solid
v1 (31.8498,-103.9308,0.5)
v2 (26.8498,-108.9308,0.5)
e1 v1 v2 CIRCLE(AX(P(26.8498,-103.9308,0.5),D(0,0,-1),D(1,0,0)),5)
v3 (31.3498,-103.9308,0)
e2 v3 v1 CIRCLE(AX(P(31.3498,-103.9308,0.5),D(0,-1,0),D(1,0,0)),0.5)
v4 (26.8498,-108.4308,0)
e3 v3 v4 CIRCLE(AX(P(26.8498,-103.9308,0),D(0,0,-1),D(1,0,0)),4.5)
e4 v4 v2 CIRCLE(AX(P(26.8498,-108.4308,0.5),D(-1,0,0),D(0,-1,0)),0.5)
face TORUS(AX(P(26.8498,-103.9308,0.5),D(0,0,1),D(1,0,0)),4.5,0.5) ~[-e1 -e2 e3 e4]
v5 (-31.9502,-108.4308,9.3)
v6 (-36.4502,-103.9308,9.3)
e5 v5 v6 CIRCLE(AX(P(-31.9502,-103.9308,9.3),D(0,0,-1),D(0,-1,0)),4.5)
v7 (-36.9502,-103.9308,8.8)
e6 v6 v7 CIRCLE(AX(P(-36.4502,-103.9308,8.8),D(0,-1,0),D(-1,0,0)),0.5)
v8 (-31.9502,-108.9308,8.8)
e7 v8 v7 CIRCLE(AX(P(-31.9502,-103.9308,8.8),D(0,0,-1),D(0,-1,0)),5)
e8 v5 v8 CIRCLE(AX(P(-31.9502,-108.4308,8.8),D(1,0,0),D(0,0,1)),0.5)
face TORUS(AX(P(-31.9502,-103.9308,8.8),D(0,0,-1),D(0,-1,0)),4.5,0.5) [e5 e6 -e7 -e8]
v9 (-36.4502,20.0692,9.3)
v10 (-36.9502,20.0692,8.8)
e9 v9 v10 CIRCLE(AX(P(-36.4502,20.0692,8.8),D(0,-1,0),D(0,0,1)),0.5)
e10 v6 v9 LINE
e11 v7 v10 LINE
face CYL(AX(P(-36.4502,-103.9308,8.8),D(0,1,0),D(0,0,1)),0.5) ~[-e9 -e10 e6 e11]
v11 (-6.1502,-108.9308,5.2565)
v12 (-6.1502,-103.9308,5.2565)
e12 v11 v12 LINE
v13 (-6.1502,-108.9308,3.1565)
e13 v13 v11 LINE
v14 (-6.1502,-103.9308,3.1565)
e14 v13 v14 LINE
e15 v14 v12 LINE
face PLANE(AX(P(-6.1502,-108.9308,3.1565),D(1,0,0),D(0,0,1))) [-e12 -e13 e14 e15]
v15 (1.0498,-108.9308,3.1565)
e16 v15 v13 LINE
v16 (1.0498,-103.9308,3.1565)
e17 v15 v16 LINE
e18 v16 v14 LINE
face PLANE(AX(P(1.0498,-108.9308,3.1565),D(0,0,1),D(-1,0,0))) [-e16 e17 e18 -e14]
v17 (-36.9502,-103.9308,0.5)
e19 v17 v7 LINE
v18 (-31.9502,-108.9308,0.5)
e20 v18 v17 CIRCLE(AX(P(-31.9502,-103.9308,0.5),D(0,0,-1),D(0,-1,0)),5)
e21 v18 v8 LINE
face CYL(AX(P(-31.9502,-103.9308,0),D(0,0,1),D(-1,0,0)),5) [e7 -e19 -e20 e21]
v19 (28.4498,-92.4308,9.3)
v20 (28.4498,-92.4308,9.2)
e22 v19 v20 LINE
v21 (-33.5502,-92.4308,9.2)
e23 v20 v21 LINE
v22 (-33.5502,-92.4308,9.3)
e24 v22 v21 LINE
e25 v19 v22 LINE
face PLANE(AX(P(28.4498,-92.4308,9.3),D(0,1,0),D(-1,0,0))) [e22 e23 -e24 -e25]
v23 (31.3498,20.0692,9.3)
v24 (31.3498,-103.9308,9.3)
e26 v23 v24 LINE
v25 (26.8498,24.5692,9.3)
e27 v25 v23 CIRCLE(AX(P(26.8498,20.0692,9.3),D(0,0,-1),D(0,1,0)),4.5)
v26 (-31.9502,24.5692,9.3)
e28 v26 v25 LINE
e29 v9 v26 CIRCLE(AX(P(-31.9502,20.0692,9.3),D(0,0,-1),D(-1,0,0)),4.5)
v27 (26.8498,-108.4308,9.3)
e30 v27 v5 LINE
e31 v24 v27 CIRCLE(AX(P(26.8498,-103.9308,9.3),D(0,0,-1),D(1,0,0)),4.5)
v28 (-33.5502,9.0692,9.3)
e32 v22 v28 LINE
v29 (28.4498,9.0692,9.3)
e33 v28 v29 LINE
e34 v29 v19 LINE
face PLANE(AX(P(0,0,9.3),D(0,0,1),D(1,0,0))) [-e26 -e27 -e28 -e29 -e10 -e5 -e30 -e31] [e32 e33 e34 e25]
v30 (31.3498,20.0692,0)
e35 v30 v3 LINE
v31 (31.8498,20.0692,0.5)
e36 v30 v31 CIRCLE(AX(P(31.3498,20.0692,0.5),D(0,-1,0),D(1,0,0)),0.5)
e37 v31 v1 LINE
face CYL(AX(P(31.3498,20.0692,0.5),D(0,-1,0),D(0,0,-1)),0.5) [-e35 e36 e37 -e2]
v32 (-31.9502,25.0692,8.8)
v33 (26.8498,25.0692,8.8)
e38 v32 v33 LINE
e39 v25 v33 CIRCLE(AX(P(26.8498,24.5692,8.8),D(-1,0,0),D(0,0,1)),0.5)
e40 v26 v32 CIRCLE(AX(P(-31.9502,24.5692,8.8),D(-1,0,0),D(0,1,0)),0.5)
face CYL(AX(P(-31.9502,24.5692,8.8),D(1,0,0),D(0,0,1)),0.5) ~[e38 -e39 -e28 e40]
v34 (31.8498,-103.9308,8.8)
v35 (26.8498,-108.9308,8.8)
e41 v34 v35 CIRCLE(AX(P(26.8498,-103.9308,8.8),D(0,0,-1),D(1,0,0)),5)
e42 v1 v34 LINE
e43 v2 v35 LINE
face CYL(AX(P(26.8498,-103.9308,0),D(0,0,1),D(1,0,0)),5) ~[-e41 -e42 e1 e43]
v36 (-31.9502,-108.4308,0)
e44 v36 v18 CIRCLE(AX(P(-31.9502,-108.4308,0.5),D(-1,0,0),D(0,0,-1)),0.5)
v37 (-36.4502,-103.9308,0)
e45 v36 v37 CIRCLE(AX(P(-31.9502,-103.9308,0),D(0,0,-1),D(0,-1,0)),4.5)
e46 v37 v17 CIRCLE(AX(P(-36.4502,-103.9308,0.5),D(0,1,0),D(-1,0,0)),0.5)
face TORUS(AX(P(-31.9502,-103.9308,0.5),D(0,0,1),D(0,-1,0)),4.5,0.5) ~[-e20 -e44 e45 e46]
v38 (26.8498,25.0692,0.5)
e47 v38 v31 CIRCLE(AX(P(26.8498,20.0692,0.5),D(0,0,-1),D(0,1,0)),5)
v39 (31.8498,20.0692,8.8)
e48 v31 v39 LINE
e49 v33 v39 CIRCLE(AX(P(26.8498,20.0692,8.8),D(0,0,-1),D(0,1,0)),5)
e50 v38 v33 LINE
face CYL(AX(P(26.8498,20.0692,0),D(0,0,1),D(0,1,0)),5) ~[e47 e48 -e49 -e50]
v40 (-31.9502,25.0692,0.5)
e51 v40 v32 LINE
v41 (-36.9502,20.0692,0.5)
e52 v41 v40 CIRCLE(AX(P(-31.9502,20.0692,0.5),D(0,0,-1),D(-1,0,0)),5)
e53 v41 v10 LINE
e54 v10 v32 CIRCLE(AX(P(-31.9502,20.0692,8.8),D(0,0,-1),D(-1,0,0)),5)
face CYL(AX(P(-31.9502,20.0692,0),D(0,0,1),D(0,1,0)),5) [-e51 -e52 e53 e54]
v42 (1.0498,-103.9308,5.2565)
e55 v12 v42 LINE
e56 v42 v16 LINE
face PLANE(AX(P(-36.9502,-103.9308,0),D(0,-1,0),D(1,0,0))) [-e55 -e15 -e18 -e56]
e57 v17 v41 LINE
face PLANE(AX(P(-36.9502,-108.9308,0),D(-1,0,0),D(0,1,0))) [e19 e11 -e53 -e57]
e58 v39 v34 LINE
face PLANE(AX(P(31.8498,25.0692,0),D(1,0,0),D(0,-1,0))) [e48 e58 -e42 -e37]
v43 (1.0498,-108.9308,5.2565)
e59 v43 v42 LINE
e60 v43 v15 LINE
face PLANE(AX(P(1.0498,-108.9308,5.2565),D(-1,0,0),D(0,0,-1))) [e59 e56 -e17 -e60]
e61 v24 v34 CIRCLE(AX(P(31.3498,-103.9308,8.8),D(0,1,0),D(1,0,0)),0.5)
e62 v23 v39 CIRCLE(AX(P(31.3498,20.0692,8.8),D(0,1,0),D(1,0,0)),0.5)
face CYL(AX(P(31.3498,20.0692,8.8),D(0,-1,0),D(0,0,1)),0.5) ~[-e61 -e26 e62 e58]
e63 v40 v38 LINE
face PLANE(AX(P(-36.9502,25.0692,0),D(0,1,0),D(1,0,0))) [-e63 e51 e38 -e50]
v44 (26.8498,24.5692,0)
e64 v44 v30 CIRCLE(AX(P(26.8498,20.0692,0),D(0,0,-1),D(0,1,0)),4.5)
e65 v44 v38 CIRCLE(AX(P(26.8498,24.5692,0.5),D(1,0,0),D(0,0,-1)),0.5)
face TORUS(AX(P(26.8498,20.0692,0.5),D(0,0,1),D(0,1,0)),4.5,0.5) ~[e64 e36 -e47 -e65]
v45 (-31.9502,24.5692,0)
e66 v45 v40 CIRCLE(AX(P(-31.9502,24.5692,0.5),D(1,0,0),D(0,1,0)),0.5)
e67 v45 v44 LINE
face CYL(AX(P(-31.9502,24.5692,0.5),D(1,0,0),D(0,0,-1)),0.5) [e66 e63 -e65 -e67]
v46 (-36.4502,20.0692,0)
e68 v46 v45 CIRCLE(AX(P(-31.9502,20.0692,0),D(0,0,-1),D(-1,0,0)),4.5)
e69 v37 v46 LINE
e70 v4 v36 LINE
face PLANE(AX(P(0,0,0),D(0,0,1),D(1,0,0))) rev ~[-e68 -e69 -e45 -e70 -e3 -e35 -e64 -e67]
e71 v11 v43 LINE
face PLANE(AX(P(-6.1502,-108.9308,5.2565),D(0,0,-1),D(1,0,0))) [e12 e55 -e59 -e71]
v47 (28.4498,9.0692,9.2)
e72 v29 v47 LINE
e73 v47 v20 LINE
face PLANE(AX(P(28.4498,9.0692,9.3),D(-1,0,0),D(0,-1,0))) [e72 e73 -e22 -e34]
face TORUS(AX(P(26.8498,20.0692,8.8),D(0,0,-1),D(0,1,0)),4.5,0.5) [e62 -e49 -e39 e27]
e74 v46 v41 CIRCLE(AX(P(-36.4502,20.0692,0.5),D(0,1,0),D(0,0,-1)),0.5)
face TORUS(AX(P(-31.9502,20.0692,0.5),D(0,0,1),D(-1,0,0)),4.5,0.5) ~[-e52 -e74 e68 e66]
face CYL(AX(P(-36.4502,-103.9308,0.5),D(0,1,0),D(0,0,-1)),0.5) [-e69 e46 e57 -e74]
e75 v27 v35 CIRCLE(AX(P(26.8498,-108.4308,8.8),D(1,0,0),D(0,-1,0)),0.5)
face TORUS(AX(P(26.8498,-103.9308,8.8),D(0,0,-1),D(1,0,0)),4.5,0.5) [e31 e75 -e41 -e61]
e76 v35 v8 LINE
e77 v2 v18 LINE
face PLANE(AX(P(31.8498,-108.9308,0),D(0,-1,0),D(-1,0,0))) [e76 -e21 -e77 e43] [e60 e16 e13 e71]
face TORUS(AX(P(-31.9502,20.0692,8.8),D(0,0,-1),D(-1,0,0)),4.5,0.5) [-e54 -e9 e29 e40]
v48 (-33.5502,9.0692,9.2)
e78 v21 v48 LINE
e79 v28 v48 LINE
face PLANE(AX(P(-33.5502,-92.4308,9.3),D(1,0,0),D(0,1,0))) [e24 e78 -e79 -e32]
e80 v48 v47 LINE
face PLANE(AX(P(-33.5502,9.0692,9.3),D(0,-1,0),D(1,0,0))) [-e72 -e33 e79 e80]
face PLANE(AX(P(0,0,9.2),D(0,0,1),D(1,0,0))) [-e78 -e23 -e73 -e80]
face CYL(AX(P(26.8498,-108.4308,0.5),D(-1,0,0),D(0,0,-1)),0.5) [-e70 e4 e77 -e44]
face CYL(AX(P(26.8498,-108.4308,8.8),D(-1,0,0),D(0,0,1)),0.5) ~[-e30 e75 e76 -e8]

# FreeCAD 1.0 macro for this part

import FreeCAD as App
import Part
import Sketcher


def edges_at(feature, points):
    """Names of the edges that pass closest to the given points."""
    edges = feature.Shape.Edges
    near = lambda p: min(range(len(edges)), key=lambda i: edges[i].distToShape(Part.Vertex(*p))[0])
    return sorted({f"Edge{near(p) + 1}" for p in points})


def add_polygon(sketch, points):
    """Adds a closed chain of lines whose ends are joined by coincident constraints."""
    first, n = sketch.GeometryCount, len(points)
    for a, b in zip(points, points[1:] + points[:1]):
        sketch.addGeometry(Part.LineSegment(App.Vector(*a, 0), App.Vector(*b, 0)), False)
    for i in range(n):
        sketch.addConstraint(Sketcher.Constraint("Coincident", first + i, 2, first + (i + 1) % n, 1))

doc = App.newDocument("Part")
body = doc.addObject("PartDesign::Body", "Body")

sketch1 = body.newObject("Sketcher::SketchObject", "Sketch")
sketch1.AttachmentSupport = (doc.getObject("XY_Plane"), [""])
sketch1.MapMode = "FlatFace"
add_polygon(sketch1, [(32, 25), (-37, 25), (-37, -109), (32, -109)])
sketch1.addConstraint(Sketcher.Constraint("Horizontal", 0))
sketch1.addConstraint(Sketcher.Constraint("Vertical", 1))
sketch1.addConstraint(Sketcher.Constraint("Horizontal", 2))
sketch1.addConstraint(Sketcher.Constraint("Vertical", 3))
sketch1.addConstraint(Sketcher.Constraint("DistanceY", 1, 2, 1, 1, 134.0))
sketch1.addConstraint(Sketcher.Constraint("DistanceX", 0, 2, 0, 1, 68.8))
sketch1.addConstraint(Sketcher.Constraint("DistanceX", 0, 2, -1, 1, 36.9502))
sketch1.addConstraint(Sketcher.Constraint("DistanceY", -1, 1, 0, 2, 25.0692))
pad1 = body.newObject("PartDesign::Pad", "Pad")
pad1.Profile = sketch1
pad1.Length = 9.3

sketch2 = body.newObject("Sketcher::SketchObject", "Sketch001")
sketch2.AttachmentSupport = (doc.getObject("XY_Plane"), [""])
sketch2.MapMode = "FlatFace"
sketch2.AttachmentOffset = App.Placement(App.Vector(0, 0, 9.3), App.Rotation())
add_polygon(sketch2, [(28, 9), (-34, 9), (-34, -92), (28, -92)])
sketch2.addConstraint(Sketcher.Constraint("Horizontal", 0))
sketch2.addConstraint(Sketcher.Constraint("Vertical", 1))
sketch2.addConstraint(Sketcher.Constraint("Horizontal", 2))
sketch2.addConstraint(Sketcher.Constraint("Vertical", 3))
sketch2.addConstraint(Sketcher.Constraint("DistanceX", 0, 2, 0, 1, 62.0))
sketch2.addConstraint(Sketcher.Constraint("DistanceY", 1, 2, 1, 1, 101.5))
sketch2.addConstraint(Sketcher.Constraint("DistanceX", 0, 2, -1, 1, 33.5502))
sketch2.addConstraint(Sketcher.Constraint("DistanceY", -1, 1, 0, 2, 9.0692))
pocket1 = body.newObject("PartDesign::Pocket", "Pocket")
pocket1.Profile = sketch2
pocket1.Length = 0.1

sketch3 = body.newObject("Sketcher::SketchObject", "Sketch002")
sketch3.AttachmentSupport = (doc.getObject("XZ_Plane"), [""])
sketch3.MapMode = "FlatFace"
sketch3.AttachmentOffset = App.Placement(App.Vector(0, 0, 108.9308), App.Rotation())
add_polygon(sketch3, [(1, 5.3), (-6.2, 5.3), (-6.2, 3.2), (1, 3.2)])
sketch3.addConstraint(Sketcher.Constraint("Horizontal", 0))
sketch3.addConstraint(Sketcher.Constraint("Vertical", 1))
sketch3.addConstraint(Sketcher.Constraint("Horizontal", 2))
sketch3.addConstraint(Sketcher.Constraint("Vertical", 3))
sketch3.addConstraint(Sketcher.Constraint("DistanceX", 0, 2, 0, 1, 7.2))
sketch3.addConstraint(Sketcher.Constraint("DistanceY", 1, 2, 1, 1, 2.1))
sketch3.addConstraint(Sketcher.Constraint("DistanceX", 0, 2, -1, 1, 6.1502))
sketch3.addConstraint(Sketcher.Constraint("DistanceY", -1, 1, 0, 2, 5.2565))
pocket2 = body.newObject("PartDesign::Pocket", "Pocket001")
pocket2.Profile = sketch3
pocket2.Length = 5
doc.recompute()

fillet = body.newObject("PartDesign::Fillet", "Fillet")
fillet.Base = (pocket2, edges_at(pocket2, [
    (31.85, -108.931, 4.65),
    (-36.95, -108.931, 4.65),
    (31.85, 25.069, 4.65),
    (-36.95, 25.069, 4.65),
]))
fillet.Radius = 5
doc.recompute()

fillet2 = body.newObject("PartDesign::Fillet", "Fillet001")
fillet2.Base = (fillet, edges_at(fillet, [
    (30.385, -107.466, 9.3),
    (31.85, -41.931, 9.3),
    (30.385, 23.605, 9.3),
    (-2.55, 25.069, 9.3),
    (-35.486, 23.605, 9.3),
    (-36.95, -41.931, 9.3),
    (-35.486, -107.466, 9.3),
    (-2.55, -108.931, 9.3),
    (30.385, -107.466, 0),
    (-2.55, -108.931, 0),
    (-35.486, -107.466, 0),
    (-36.95, -41.931, 0),
    (-35.486, 23.605, 0),
    (-2.55, 25.069, 0),
    (30.385, 23.605, 0),
    (31.85, -41.931, 0),
]))
fillet2.Radius = 0.5

doc.recompute()
